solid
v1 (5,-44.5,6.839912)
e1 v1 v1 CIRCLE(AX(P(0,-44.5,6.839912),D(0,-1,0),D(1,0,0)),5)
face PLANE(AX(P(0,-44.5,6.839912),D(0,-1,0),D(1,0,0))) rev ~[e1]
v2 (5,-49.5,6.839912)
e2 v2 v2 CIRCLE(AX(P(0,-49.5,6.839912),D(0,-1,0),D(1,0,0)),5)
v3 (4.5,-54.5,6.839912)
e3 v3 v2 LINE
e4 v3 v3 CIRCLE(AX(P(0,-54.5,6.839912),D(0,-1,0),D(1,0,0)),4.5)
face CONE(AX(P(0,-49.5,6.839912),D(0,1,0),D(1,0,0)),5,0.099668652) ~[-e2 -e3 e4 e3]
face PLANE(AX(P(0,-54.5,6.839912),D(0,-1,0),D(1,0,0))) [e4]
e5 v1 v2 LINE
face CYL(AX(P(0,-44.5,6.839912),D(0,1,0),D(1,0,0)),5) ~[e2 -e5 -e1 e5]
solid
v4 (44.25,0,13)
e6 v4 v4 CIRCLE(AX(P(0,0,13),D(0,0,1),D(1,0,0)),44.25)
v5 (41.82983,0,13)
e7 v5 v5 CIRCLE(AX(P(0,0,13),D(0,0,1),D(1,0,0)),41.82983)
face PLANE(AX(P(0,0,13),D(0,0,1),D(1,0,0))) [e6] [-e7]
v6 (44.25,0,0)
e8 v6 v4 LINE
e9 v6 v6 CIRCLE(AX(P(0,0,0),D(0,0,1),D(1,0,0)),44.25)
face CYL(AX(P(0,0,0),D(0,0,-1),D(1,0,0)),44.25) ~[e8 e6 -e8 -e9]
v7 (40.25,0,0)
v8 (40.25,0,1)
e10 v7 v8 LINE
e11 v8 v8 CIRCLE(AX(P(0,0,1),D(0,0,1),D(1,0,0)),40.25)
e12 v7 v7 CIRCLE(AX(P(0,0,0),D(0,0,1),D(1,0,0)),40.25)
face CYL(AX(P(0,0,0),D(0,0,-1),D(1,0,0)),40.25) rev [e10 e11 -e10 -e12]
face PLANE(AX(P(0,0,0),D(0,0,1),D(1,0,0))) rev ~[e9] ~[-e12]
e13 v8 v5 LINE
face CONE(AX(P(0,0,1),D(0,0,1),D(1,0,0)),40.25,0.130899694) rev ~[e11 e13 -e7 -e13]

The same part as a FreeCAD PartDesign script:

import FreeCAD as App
import Part
import Sketcher
from FreeCAD import Vector
Q = App.Units.Quantity


def edges_at(feature, points):
    """Names of the edges that pass closest to the given points."""
    edges = feature.Shape.Edges
    near = lambda p: min(range(len(edges)), key=lambda i: edges[i].distToShape(Part.Vertex(*p))[0])
    return sorted({f"Edge{near(p) + 1}" for p in points})

doc = App.newDocument("Part")
params = doc.addObject("Spreadsheet::Sheet", "Params")
for row, (alias, value) in enumerate([
    ("sketch1_diameter", "88.5 mm"),
    ("sketch1_diameter2", "80.5 mm"),
    ("pad1_length", "13 mm"),
    ("chamfer_size", "12 mm"),
    ("chamfer_size2", "1.57983 mm"),
    ("sketch2_diameter", "10 mm"),
    ("pad2_length", "10 mm"),
    ("chamfer2_size", "0.5 mm"),
    ("chamfer2_size2", "5 mm"),
], start=1):
    params.set(f"A{row}", alias)
    params.set(f"B{row}", "=" + value)
    params.setAlias(f"B{row}", alias)

body = doc.addObject("PartDesign::Body", "Body")

sketch1 = doc.addObject("Sketcher::SketchObject", "Sketch")
body.addObject(sketch1)
sketch1.AttachmentSupport = (doc.XY_Plane, [""])
sketch1.MapMode = "FlatFace"
sketch1.addGeometry(Part.Circle(Vector(0, 0, 0), Vector(0, 0, 1), 44), False)
sketch1.addGeometry(Part.Circle(Vector(0, 0, 0), Vector(0, 0, 1), 40), False)
sketch1.addConstraint(Sketcher.Constraint("Coincident", 0, 3, -1, 1))
sketch1.addConstraint(Sketcher.Constraint("Coincident", 1, 3, -1, 1))
sketch1.addConstraint(Sketcher.Constraint("Diameter", 0, Q("88.5 mm")))
sketch1.addConstraint(Sketcher.Constraint("Diameter", 1, Q("80.5 mm")))
sketch1.setExpression("Constraints[2]", "Params.sketch1_diameter")
sketch1.setExpression("Constraints[3]", "Params.sketch1_diameter2")
pad1 = doc.addObject("PartDesign::Pad", "Pad")
body.addObject(pad1)
pad1.Profile = sketch1
pad1.setExpression("Length", "Params.pad1_length")
doc.recompute()

chamfer = doc.addObject("PartDesign::Chamfer", "Chamfer")
body.addObject(chamfer)
chamfer.Base = (pad1, edges_at(pad1, [(-40.25, 0, 13)]))
chamfer.ChamferType = "Two distances"
chamfer.setExpression("Size", "Params.chamfer_size")
chamfer.setExpression("Size2", "Params.chamfer_size2")
body2 = doc.addObject("PartDesign::Body", "Body001")

sketch2 = doc.addObject("Sketcher::SketchObject", "Sketch001")
body2.addObject(sketch2)
sketch2.AttachmentSupport = (doc.getObject("XZ_Plane001"), [""])
sketch2.MapMode = "FlatFace"
sketch2.AttachmentOffset = App.Placement(Vector(0, 0, 44.5), App.Rotation())
sketch2.addGeometry(Part.Circle(Vector(0, 7, 0), Vector(0, 0, 1), 5), False)
sketch2.addConstraint(Sketcher.Constraint("PointOnObject", 0, 3, -2))
sketch2.addConstraint(Sketcher.Constraint("Diameter", 0, Q("10 mm")))
sketch2.addConstraint(Sketcher.Constraint("DistanceY", -1, 1, 0, 3, Q("6.839912 mm")))
sketch2.setExpression("Constraints[1]", "Params.sketch2_diameter")
pad2 = doc.addObject("PartDesign::Pad", "Pad001")
body2.addObject(pad2)
pad2.Profile = sketch2
pad2.setExpression("Length", "Params.pad2_length")
doc.recompute()

chamfer2 = doc.addObject("PartDesign::Chamfer", "Chamfer001")
body2.addObject(chamfer2)
chamfer2.Base = (pad2, edges_at(pad2, [(-5, -54.5, 6.84)]))
chamfer2.ChamferType = "Two distances"
chamfer2.setExpression("Size", "Params.chamfer2_size")
chamfer2.setExpression("Size2", "Params.chamfer2_size2")
chamfer2.FlipDirection = True

doc.recompute()
